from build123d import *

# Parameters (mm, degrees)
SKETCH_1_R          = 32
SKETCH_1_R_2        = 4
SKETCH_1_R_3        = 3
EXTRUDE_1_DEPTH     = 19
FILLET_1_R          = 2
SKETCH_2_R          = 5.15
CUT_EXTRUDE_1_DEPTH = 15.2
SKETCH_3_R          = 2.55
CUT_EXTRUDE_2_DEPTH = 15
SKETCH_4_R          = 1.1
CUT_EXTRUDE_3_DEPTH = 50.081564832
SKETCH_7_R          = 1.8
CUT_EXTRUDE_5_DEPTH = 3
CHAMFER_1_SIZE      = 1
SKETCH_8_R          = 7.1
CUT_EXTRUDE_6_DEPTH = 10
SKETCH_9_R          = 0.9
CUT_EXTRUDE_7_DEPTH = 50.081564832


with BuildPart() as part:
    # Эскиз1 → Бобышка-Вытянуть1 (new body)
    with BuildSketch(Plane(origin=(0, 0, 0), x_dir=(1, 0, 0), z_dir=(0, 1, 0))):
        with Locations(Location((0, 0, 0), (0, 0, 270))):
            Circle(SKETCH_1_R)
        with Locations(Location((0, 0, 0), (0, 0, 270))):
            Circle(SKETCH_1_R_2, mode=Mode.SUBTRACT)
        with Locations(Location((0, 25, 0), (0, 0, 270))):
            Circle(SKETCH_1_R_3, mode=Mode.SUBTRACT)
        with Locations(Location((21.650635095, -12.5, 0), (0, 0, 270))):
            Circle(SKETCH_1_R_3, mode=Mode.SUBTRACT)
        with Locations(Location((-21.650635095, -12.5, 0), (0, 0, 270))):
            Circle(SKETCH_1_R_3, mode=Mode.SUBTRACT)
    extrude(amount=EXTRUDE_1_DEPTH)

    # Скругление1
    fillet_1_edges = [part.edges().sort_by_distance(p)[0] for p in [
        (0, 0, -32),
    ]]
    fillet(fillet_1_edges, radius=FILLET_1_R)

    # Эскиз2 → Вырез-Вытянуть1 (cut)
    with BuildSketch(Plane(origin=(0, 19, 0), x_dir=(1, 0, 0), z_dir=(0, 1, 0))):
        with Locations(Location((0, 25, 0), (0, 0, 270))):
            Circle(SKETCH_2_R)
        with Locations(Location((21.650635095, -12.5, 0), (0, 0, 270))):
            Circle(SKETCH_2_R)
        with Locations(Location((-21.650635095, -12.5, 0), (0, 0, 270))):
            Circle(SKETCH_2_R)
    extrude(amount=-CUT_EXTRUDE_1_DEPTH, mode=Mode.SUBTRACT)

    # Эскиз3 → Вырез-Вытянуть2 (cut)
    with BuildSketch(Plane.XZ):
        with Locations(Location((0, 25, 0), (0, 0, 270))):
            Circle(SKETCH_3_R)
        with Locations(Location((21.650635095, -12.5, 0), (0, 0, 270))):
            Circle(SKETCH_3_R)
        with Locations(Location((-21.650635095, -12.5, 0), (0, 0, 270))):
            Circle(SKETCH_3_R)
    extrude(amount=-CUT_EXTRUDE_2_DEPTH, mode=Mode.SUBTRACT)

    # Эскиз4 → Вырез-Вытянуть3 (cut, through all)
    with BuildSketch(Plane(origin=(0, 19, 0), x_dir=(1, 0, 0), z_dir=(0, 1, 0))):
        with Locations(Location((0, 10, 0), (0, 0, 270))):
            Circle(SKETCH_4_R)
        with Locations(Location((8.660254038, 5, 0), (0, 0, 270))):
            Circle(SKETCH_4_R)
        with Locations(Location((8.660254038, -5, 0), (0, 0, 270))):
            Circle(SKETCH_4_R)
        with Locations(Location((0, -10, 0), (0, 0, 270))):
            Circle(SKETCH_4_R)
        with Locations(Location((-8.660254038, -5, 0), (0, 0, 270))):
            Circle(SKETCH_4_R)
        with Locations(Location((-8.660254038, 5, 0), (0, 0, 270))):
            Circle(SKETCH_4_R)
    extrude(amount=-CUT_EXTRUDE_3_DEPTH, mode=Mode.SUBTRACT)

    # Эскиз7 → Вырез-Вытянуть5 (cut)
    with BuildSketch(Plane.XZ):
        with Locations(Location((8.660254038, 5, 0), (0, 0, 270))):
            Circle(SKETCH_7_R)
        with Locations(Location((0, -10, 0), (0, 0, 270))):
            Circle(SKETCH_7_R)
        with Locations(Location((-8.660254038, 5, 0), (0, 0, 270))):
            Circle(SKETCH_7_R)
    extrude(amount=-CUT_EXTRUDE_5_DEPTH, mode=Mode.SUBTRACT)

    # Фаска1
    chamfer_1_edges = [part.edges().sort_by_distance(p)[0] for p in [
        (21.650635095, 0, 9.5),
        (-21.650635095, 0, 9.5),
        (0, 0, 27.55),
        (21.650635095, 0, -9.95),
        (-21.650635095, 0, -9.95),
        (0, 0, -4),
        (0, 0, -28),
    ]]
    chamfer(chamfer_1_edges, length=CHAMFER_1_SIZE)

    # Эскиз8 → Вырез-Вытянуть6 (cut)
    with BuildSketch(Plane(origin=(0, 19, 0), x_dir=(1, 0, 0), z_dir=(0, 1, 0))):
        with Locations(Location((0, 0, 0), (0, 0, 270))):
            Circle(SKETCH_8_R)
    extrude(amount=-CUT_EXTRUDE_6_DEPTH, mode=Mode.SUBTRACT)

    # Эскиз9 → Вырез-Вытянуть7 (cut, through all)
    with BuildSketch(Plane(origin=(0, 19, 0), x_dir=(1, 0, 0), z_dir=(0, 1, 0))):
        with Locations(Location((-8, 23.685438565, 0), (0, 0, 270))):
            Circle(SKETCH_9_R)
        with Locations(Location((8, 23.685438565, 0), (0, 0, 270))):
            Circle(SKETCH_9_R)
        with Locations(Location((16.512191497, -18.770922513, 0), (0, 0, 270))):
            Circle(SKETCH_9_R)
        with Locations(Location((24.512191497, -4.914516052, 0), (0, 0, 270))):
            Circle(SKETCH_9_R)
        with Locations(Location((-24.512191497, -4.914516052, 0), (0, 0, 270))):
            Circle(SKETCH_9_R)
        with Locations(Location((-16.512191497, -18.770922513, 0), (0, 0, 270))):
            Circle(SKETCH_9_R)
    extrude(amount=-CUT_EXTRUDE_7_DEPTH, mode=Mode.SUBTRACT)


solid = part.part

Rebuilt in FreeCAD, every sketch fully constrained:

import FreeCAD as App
import Part
import Sketcher

V = App.Vector
Q = App.Units.Quantity


def edges_at(feature, points):
    """Names of the edges that pass closest to the given points."""
    edges = feature.Shape.Edges
    near = lambda p: min(range(len(edges)), key=lambda i: edges[i].distToShape(Part.Vertex(*p))[0])
    return sorted({f"Edge{near(p) + 1}" for p in points})

doc = App.newDocument("Part")
body = doc.addObject("PartDesign::Body", "Body")

# Sketch on XZ plane
sketch1 = doc.addObject("Sketcher::SketchObject", "Sketch")
body.addObject(sketch1)
sketch1.AttachmentSupport = (doc.XZ_Plane, [""])
sketch1.MapMode = "FlatFace"
sketch1.addGeometry([
    Part.Circle(V(0, 0, 0), V(0, 0, 1), 32),  # 0
    Part.Circle(V(0, -25, 0), V(0, 0, 1), 3),  # 1
    Part.Circle(V(-21.7, 12.5, 0), V(0, 0, 1), 3),  # 2
    Part.Circle(V(0, 0, 0), V(0, 0, 1), 4),  # 3
    Part.Circle(V(21.7, 12.5, 0), V(0, 0, 1), 3),  # 4
], False)
sketch1.addConstraint([
    Sketcher.Constraint("Coincident", 0, 3, -1, 1),
    Sketcher.Constraint("Coincident", 3, 3, -1, 1),
    Sketcher.Constraint("Equal", 1, 2),
    Sketcher.Constraint("Equal", 2, 4),
    Sketcher.Constraint("Symmetric", 2, 3, 4, 3, -2),
    Sketcher.Constraint("PointOnObject", 1, 3, -2),
    Sketcher.Constraint("Diameter", 0, Q("64 mm")),
    Sketcher.Constraint("Diameter", 1, Q("6 mm")),
    Sketcher.Constraint("Diameter", 3, Q("8 mm")),
    Sketcher.Constraint("DistanceY", 1, 3, -1, 1, Q("25 mm")),
    Sketcher.Constraint("DistanceY", -1, 1, 2, 3, Q("12.5 mm")),
    Sketcher.Constraint("DistanceX", 2, 3, 4, 3, Q("43.30127 mm")),
])
pad1 = doc.addObject("PartDesign::Pad", "Pad")
body.addObject(pad1)
pad1.Profile = sketch1
pad1.Length = 19
pad1.Reversed = True
doc.recompute()

fillet = doc.addObject("PartDesign::Fillet", "Fillet")
body.addObject(fillet)
fillet.Base = (pad1, edges_at(pad1, [(0, 0, -32)]))
fillet.Radius = 2

# Sketch on XZ plane
sketch2 = doc.addObject("Sketcher::SketchObject", "Sketch001")
body.addObject(sketch2)
sketch2.AttachmentSupport = (doc.XZ_Plane, [""])
sketch2.MapMode = "FlatFace"
sketch2.AttachmentOffset = App.Placement(V(0, 0, -19), App.Rotation())
sketch2.addGeometry([
    Part.Circle(V(0, -25, 0), V(0, 0, 1), 5),
    Part.Circle(V(22, 12, 0), V(0, 0, 1), 5),
    Part.Circle(V(-22, 12, 0), V(0, 0, 1), 5),
], False)
sketch2.addConstraint([
    Sketcher.Constraint("Equal", 0, 1),
    Sketcher.Constraint("Equal", 1, 2),
    Sketcher.Constraint("Symmetric", 1, 3, 2, 3, -2),
    Sketcher.Constraint("PointOnObject", 0, 3, -2),
    Sketcher.Constraint("Diameter", 0, Q("10.3 mm")),
    Sketcher.Constraint("DistanceY", 0, 3, -1, 1, Q("25 mm")),
    Sketcher.Constraint("DistanceY", -1, 1, 1, 3, Q("12.5 mm")),
    Sketcher.Constraint("DistanceX", 2, 3, 1, 3, Q("43.30127 mm")),
])
pocket1 = doc.addObject("PartDesign::Pocket", "Pocket")
body.addObject(pocket1)
pocket1.Profile = sketch2
pocket1.Length = 15.2
pocket1.Reversed = True

# Sketch on XZ plane
sketch3 = doc.addObject("Sketcher::SketchObject", "Sketch002")
body.addObject(sketch3)
sketch3.AttachmentSupport = (doc.XZ_Plane, [""])
sketch3.MapMode = "FlatFace"
sketch3.addGeometry([
    Part.Circle(V(0, 25, 0), V(0, 0, 1), 2.5),
    Part.Circle(V(21.7, -12.5, 0), V(0, 0, 1), 2.5),
    Part.Circle(V(-21.7, -12.5, 0), V(0, 0, 1), 2.5),
], False)
sketch3.addConstraint([
    Sketcher.Constraint("Equal", 0, 1),
    Sketcher.Constraint("Equal", 1, 2),
    Sketcher.Constraint("Symmetric", 1, 3, 2, 3, -2),
    Sketcher.Constraint("PointOnObject", 0, 3, -2),
    Sketcher.Constraint("Diameter", 0, Q("5.1 mm")),
    Sketcher.Constraint("DistanceY", -1, 1, 0, 3, Q("25 mm")),
    Sketcher.Constraint("DistanceY", 1, 3, -1, 1, Q("12.5 mm")),
    Sketcher.Constraint("DistanceX", 2, 3, 1, 3, Q("43.30127 mm")),
])
pocket2 = doc.addObject("PartDesign::Pocket", "Pocket001")
body.addObject(pocket2)
pocket2.Profile = sketch3
pocket2.Length = 15

# Sketch on XZ plane
sketch4 = doc.addObject("Sketcher::SketchObject", "Sketch003")
body.addObject(sketch4)
sketch4.AttachmentSupport = (doc.XZ_Plane, [""])
sketch4.MapMode = "FlatFace"
sketch4.AttachmentOffset = App.Placement(V(0, 0, -19), App.Rotation())
sketch4.addGeometry([
    Part.Circle(V(0, -10, 0), V(0, 0, 1), 1.1),  # 0
    Part.Circle(V(8.7, -5, 0), V(0, 0, 1), 1.1),  # 1
    Part.Circle(V(8.7, 5, 0), V(0, 0, 1), 1.1),  # 2
    Part.Circle(V(0, 10, 0), V(0, 0, 1), 1.1),  # 3
    Part.Circle(V(-8.7, 5, 0), V(0, 0, 1), 1.1),  # 4
    Part.Circle(V(-8.7, -5, 0), V(0, 0, 1), 1.1),  # 5
], False)
sketch4.addConstraint([
    Sketcher.Constraint("Equal", 0, 1),
    Sketcher.Constraint("Equal", 1, 2),
    Sketcher.Constraint("Equal", 2, 3),
    Sketcher.Constraint("Equal", 3, 4),
    Sketcher.Constraint("Equal", 4, 5),
    Sketcher.Constraint("Symmetric", 0, 3, 3, 3, -1, 1),
    Sketcher.Constraint("Symmetric", 1, 3, 4, 3, -1, 1),
    Sketcher.Constraint("Symmetric", 2, 3, 5, 3, -1, 1),
    Sketcher.Constraint("Symmetric", 2, 3, 4, 3, -2),
    Sketcher.Constraint("PointOnObject", 0, 3, -2),
    Sketcher.Constraint("Diameter", 0, Q("2.2 mm")),
    Sketcher.Constraint("DistanceY", 0, 3, -1, 1, Q("10 mm")),
    Sketcher.Constraint("DistanceY", 1, 3, -1, 1, Q("5 mm")),
    Sketcher.Constraint("DistanceX", 4, 3, 2, 3, Q("17.320508 mm")),
])
pocket3 = doc.addObject("PartDesign::Pocket", "Pocket002")
body.addObject(pocket3)
pocket3.Profile = sketch4
pocket3.Type = "ThroughAll"
pocket3.Reversed = True

# Sketch on XZ plane
sketch5 = doc.addObject("Sketcher::SketchObject", "Sketch004")
body.addObject(sketch5)
sketch5.AttachmentSupport = (doc.XZ_Plane, [""])
sketch5.MapMode = "FlatFace"
sketch5.addGeometry([
    Part.Circle(V(8.7, 5, 0), V(0, 0, 1), 1.8),
    Part.Circle(V(0, -10, 0), V(0, 0, 1), 1.8),
    Part.Circle(V(-8.7, 5, 0), V(0, 0, 1), 1.8),
], False)
sketch5.addConstraint([
    Sketcher.Constraint("Equal", 0, 1),
    Sketcher.Constraint("Equal", 1, 2),
    Sketcher.Constraint("Symmetric", 0, 3, 2, 3, -2),
    Sketcher.Constraint("PointOnObject", 1, 3, -2),
    Sketcher.Constraint("Diameter", 0, Q("3.6 mm")),
    Sketcher.Constraint("DistanceY", -1, 1, 0, 3, Q("5 mm")),
    Sketcher.Constraint("DistanceY", 1, 3, -1, 1, Q("10 mm")),
    Sketcher.Constraint("DistanceX", 2, 3, 0, 3, Q("17.320508 mm")),
])
pocket4 = doc.addObject("PartDesign::Pocket", "Pocket003")
body.addObject(pocket4)
pocket4.Profile = sketch5
pocket4.Length = 3
doc.recompute()

chamfer = doc.addObject("PartDesign::Chamfer", "Chamfer")
body.addObject(chamfer)
chamfer.Base = (pocket4, edges_at(pocket4, [
    (21.651, 0, 9.5),
    (-21.651, 0, 9.5),
    (0, 0, 27.55),
    (21.651, 0, -9.95),
    (-21.651, 0, -9.95),
    (0, 0, -4),
    (0, 0, -28),
]))
chamfer.Size = 1

# Sketch on XZ plane
sketch6 = doc.addObject("Sketcher::SketchObject", "Sketch005")
body.addObject(sketch6)
sketch6.AttachmentSupport = (doc.XZ_Plane, [""])
sketch6.MapMode = "FlatFace"
sketch6.AttachmentOffset = App.Placement(V(0, 0, -19), App.Rotation())
sketch6.addGeometry(Part.Circle(V(0, 0, 0), V(0, 0, 1), 7), False)
sketch6.addConstraint([
    Sketcher.Constraint("Coincident", 0, 3, -1, 1),
    Sketcher.Constraint("Diameter", 0, Q("14.2 mm")),
])
pocket5 = doc.addObject("PartDesign::Pocket", "Pocket004")
body.addObject(pocket5)
pocket5.Profile = sketch6
pocket5.Length = 10
pocket5.Reversed = True

# Sketch on XZ plane
sketch7 = doc.addObject("Sketcher::SketchObject", "Sketch006")
body.addObject(sketch7)
sketch7.AttachmentSupport = (doc.XZ_Plane, [""])
sketch7.MapMode = "FlatFace"
sketch7.AttachmentOffset = App.Placement(V(0, 0, -19), App.Rotation())
sketch7.addGeometry([
    Part.Circle(V(-8, -23.7, 0), V(0, 0, 1), 0.9),  # 0
    Part.Circle(V(8, -23.7, 0), V(0, 0, 1), 0.9),  # 1
    Part.Circle(V(16.5, 18.8, 0), V(0, 0, 1), 0.9),  # 2
    Part.Circle(V(24.5, 4.9, 0), V(0, 0, 1), 0.9),  # 3
    Part.Circle(V(-24.5, 4.9, 0), V(0, 0, 1), 0.9),  # 4
    Part.Circle(V(-16.5, 18.8, 0), V(0, 0, 1), 0.9),  # 5
], False)
sketch7.addConstraint([
    Sketcher.Constraint("Equal", 0, 1),
    Sketcher.Constraint("Equal", 1, 2),
    Sketcher.Constraint("Equal", 2, 3),
    Sketcher.Constraint("Equal", 3, 4),
    Sketcher.Constraint("Equal", 4, 5),
    Sketcher.Constraint("Symmetric", 0, 3, 1, 3, -2),
    Sketcher.Constraint("Symmetric", 3, 3, 4, 3, -2),
    Sketcher.Constraint("Symmetric", 2, 3, 5, 3, -2),
    Sketcher.Constraint("Diameter", 0, Q("1.8 mm")),
    Sketcher.Constraint("DistanceX", 0, 3, -1, 1, Q("8 mm")),
    Sketcher.Constraint("DistanceX", 2, 3, 3, 3, Q("8 mm")),
    Sketcher.Constraint("DistanceY", 0, 3, -1, 1, Q("23.685439 mm")),
    Sketcher.Constraint("DistanceX", -1, 1, 2, 3, Q("16.512191 mm")),
    Sketcher.Constraint("DistanceY", 1, 3, 2, 3, Q("42.456361 mm")),
    Sketcher.Constraint("DistanceY", -1, 1, 3, 3, Q("4.914516 mm")),
])
pocket6 = doc.addObject("PartDesign::Pocket", "Pocket005")
body.addObject(pocket6)
pocket6.Profile = sketch7
pocket6.Type = "ThroughAll"
pocket6.Reversed = True

doc.recompute()
